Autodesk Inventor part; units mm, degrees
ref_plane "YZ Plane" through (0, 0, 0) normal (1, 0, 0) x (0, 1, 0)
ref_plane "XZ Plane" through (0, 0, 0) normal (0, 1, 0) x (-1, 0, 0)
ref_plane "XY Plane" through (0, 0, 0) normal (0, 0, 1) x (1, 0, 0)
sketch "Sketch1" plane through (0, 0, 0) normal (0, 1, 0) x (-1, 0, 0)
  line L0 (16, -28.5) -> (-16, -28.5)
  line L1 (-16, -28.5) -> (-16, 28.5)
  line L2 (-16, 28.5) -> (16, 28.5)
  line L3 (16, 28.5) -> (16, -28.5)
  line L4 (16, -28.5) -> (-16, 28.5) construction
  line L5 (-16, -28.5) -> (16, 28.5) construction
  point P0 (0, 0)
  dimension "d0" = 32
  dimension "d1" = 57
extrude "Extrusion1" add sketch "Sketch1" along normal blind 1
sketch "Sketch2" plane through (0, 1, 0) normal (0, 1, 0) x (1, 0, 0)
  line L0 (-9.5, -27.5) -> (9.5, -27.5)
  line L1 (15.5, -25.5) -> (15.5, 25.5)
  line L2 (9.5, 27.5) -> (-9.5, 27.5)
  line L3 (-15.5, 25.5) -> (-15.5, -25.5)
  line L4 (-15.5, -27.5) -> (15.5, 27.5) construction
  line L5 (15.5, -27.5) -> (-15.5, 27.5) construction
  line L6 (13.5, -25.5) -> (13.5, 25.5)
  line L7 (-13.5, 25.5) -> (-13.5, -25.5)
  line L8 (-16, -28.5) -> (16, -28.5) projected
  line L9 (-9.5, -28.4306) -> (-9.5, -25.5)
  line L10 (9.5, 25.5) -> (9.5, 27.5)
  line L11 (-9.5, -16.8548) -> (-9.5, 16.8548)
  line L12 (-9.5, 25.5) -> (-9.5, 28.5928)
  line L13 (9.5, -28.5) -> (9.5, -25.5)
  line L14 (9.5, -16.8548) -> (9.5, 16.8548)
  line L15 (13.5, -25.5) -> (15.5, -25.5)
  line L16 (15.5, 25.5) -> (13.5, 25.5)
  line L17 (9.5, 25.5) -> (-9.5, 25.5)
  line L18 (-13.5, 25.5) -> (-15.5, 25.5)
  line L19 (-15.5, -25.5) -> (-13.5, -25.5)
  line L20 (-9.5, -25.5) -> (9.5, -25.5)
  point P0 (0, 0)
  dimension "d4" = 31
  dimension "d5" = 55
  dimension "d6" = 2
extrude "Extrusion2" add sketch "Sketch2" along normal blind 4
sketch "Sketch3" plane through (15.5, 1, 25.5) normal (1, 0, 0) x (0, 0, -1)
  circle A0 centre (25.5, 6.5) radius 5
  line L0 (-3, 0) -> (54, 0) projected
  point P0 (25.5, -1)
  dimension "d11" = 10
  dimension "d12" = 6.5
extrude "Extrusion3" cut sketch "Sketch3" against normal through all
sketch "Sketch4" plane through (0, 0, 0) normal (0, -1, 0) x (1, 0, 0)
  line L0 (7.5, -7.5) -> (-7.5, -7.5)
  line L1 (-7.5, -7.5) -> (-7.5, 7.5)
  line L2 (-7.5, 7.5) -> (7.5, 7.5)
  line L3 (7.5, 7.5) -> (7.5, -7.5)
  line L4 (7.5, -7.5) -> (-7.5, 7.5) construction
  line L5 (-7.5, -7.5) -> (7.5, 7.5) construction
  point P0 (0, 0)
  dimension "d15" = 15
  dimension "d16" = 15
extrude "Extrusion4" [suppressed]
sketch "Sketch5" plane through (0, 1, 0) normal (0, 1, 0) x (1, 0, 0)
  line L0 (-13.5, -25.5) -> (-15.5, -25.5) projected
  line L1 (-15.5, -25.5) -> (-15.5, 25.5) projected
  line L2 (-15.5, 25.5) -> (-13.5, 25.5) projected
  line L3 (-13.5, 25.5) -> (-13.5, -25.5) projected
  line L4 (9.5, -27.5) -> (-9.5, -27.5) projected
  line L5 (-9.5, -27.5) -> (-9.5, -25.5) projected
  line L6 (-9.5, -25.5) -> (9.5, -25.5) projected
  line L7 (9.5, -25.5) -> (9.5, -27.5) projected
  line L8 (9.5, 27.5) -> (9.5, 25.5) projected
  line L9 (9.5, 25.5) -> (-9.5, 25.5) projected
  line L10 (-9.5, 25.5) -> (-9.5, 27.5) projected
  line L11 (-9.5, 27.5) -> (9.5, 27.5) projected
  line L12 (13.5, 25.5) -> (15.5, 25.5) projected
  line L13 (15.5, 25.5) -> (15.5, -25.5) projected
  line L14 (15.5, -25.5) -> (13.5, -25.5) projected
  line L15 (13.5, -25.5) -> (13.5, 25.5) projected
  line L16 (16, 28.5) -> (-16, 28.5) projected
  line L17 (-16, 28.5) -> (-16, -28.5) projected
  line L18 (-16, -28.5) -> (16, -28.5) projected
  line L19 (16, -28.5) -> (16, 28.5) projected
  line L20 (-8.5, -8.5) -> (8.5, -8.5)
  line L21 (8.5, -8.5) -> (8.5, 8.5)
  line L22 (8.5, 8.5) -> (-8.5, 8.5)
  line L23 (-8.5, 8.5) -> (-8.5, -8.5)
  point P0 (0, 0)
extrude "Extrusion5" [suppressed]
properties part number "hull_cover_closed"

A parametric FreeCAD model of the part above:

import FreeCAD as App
import Part
import Sketcher
Q = App.Units.Quantity

doc = App.newDocument("Part")
body = doc.addObject("PartDesign::Body", "Body")

# Sketch on XZ plane
sketch1 = doc.addObject("Sketcher::SketchObject", "Sketch")
body.addObject(sketch1)
sketch1.AttachmentSupport = (doc.XZ_Plane, [""])
sketch1.MapMode = "FlatFace"
sketch1.addGeometry(Part.LineSegment(App.Vector(16, -28, 0), App.Vector(-16, -28, 0)), False)
sketch1.addGeometry(Part.LineSegment(App.Vector(-16, -28, 0), App.Vector(-16, 28, 0)), False)
sketch1.addGeometry(Part.LineSegment(App.Vector(-16, 28, 0), App.Vector(16, 28, 0)), False)
sketch1.addGeometry(Part.LineSegment(App.Vector(16, 28, 0), App.Vector(16, -28, 0)), False)
sketch1.addConstraint(Sketcher.Constraint("Coincident", 0, 2, 1, 1))
sketch1.addConstraint(Sketcher.Constraint("Coincident", 1, 2, 2, 1))
sketch1.addConstraint(Sketcher.Constraint("Coincident", 2, 2, 3, 1))
sketch1.addConstraint(Sketcher.Constraint("Coincident", 3, 2, 0, 1))
sketch1.addConstraint(Sketcher.Constraint("Horizontal", 0))
sketch1.addConstraint(Sketcher.Constraint("Vertical", 1))
sketch1.addConstraint(Sketcher.Constraint("Horizontal", 2))
sketch1.addConstraint(Sketcher.Constraint("Vertical", 3))
sketch1.addConstraint(Sketcher.Constraint("Symmetric", 0, 2, 2, 2, -1, 1))
sketch1.addConstraint(Sketcher.Constraint("DistanceX", 0, 2, 0, 1, Q("32 mm")))
sketch1.addConstraint(Sketcher.Constraint("DistanceY", 1, 1, 1, 2, Q("57 mm")))
pad1 = doc.addObject("PartDesign::Pad", "Pad")
body.addObject(pad1)
pad1.Profile = sketch1
pad1.Length = 1
pad1.Reversed = True

# Sketch on XZ plane
sketch2 = doc.addObject("Sketcher::SketchObject", "Sketch001")
body.addObject(sketch2)
sketch2.AttachmentSupport = (doc.XZ_Plane, [""])
sketch2.MapMode = "FlatFace"
sketch2.AttachmentOffset = App.Placement(App.Vector(0, 0, -1), App.Rotation())
sketch2.addGeometry(Part.LineSegment(App.Vector(-9.5, 25.5, 0), App.Vector(-9.5, 27.5, 0)), False)
sketch2.addGeometry(Part.LineSegment(App.Vector(-9.5, 27.5, 0), App.Vector(9.5, 27.5, 0)), False)
sketch2.addGeometry(Part.LineSegment(App.Vector(9.5, 27.5, 0), App.Vector(9.5, 25.5, 0)), False)
sketch2.addGeometry(Part.LineSegment(App.Vector(9.5, 25.5, 0), App.Vector(-9.5, 25.5, 0)), False)
sketch2.addGeometry(Part.LineSegment(App.Vector(13.5, 25.5, 0), App.Vector(15.5, 25.5, 0)), False)
sketch2.addGeometry(Part.LineSegment(App.Vector(15.5, 25.5, 0), App.Vector(15.5, -25.5, 0)), False)
sketch2.addGeometry(Part.LineSegment(App.Vector(15.5, -25.5, 0), App.Vector(13.5, -25.5, 0)), False)
sketch2.addGeometry(Part.LineSegment(App.Vector(13.5, -25.5, 0), App.Vector(13.5, 25.5, 0)), False)
sketch2.addGeometry(Part.LineSegment(App.Vector(9.5, -25.5, 0), App.Vector(9.5, -27.5, 0)), False)
sketch2.addGeometry(Part.LineSegment(App.Vector(9.5, -27.5, 0), App.Vector(-9.5, -27.5, 0)), False)
sketch2.addGeometry(Part.LineSegment(App.Vector(-9.5, -27.5, 0), App.Vector(-9.5, -25.5, 0)), False)
sketch2.addGeometry(Part.LineSegment(App.Vector(-9.5, -25.5, 0), App.Vector(9.5, -25.5, 0)), False)
sketch2.addGeometry(Part.LineSegment(App.Vector(-13.5, -25.5, 0), App.Vector(-15.5, -25.5, 0)), False)
sketch2.addGeometry(Part.LineSegment(App.Vector(-15.5, -25.5, 0), App.Vector(-15.5, 25.5, 0)), False)
sketch2.addGeometry(Part.LineSegment(App.Vector(-15.5, 25.5, 0), App.Vector(-13.5, 25.5, 0)), False)
sketch2.addGeometry(Part.LineSegment(App.Vector(-13.5, 25.5, 0), App.Vector(-13.5, -25.5, 0)), False)
sketch2.addConstraint(Sketcher.Constraint("Coincident", 0, 2, 1, 1))
sketch2.addConstraint(Sketcher.Constraint("Coincident", 1, 2, 2, 1))
sketch2.addConstraint(Sketcher.Constraint("Coincident", 2, 2, 3, 1))
sketch2.addConstraint(Sketcher.Constraint("Coincident", 3, 2, 0, 1))
sketch2.addConstraint(Sketcher.Constraint("Coincident", 4, 2, 5, 1))
sketch2.addConstraint(Sketcher.Constraint("Coincident", 5, 2, 6, 1))
sketch2.addConstraint(Sketcher.Constraint("Coincident", 6, 2, 7, 1))
sketch2.addConstraint(Sketcher.Constraint("Coincident", 7, 2, 4, 1))
sketch2.addConstraint(Sketcher.Constraint("Coincident", 8, 2, 9, 1))
sketch2.addConstraint(Sketcher.Constraint("Coincident", 9, 2, 10, 1))
sketch2.addConstraint(Sketcher.Constraint("Coincident", 10, 2, 11, 1))
sketch2.addConstraint(Sketcher.Constraint("Coincident", 11, 2, 8, 1))
sketch2.addConstraint(Sketcher.Constraint("Coincident", 12, 2, 13, 1))
sketch2.addConstraint(Sketcher.Constraint("Coincident", 13, 2, 14, 1))
sketch2.addConstraint(Sketcher.Constraint("Coincident", 14, 2, 15, 1))
sketch2.addConstraint(Sketcher.Constraint("Coincident", 15, 2, 12, 1))
sketch2.addConstraint(Sketcher.Constraint("Vertical", 0))
sketch2.addConstraint(Sketcher.Constraint("Horizontal", 1))
sketch2.addConstraint(Sketcher.Constraint("Vertical", 2))
sketch2.addConstraint(Sketcher.Constraint("Horizontal", 3))
sketch2.addConstraint(Sketcher.Constraint("Horizontal", 4))
sketch2.addConstraint(Sketcher.Constraint("Vertical", 5))
sketch2.addConstraint(Sketcher.Constraint("Horizontal", 6))
sketch2.addConstraint(Sketcher.Constraint("Vertical", 7))
sketch2.addConstraint(Sketcher.Constraint("Vertical", 8))
sketch2.addConstraint(Sketcher.Constraint("Horizontal", 9))
sketch2.addConstraint(Sketcher.Constraint("Vertical", 10))
sketch2.addConstraint(Sketcher.Constraint("Horizontal", 11))
sketch2.addConstraint(Sketcher.Constraint("Horizontal", 12))
sketch2.addConstraint(Sketcher.Constraint("Vertical", 13))
sketch2.addConstraint(Sketcher.Constraint("Horizontal", 14))
sketch2.addConstraint(Sketcher.Constraint("Vertical", 15))
sketch2.addConstraint(Sketcher.Constraint("Symmetric", 0, 2, 8, 2, -1, 1))
sketch2.addConstraint(Sketcher.Constraint("Symmetric", 2, 2, 10, 2, -1, 1))
sketch2.addConstraint(Sketcher.Constraint("Symmetric", 4, 2, 12, 2, -1, 1))
sketch2.addConstraint(Sketcher.Constraint("Symmetric", 6, 2, 14, 2, -1, 1))
sketch2.addConstraint(Sketcher.Constraint("Horizontal", 3, 2, 4, 2))
sketch2.addConstraint(Sketcher.Constraint("Horizontal", 6, 2, 10, 2))
sketch2.addConstraint(Sketcher.Constraint("Vertical", 2, 2, 8, 2))
sketch2.addConstraint(Sketcher.Constraint("Equal", 14, 0))
sketch2.addConstraint(Sketcher.Constraint("DistanceX", 4, 1, 4, 2, Q("2 mm")))
sketch2.addConstraint(Sketcher.Constraint("DistanceY", 9, 2, 0, 2, Q("55 mm")))
sketch2.addConstraint(Sketcher.Constraint("DistanceX", 1, 1, 1, 2, Q("19 mm")))
sketch2.addConstraint(Sketcher.Constraint("DistanceX", 2, 2, 4, 2, Q("6 mm")))
pad2 = doc.addObject("PartDesign::Pad", "Pad001")
body.addObject(pad2)
pad2.Profile = sketch2
pad2.Length = 4
pad2.Reversed = True

# Sketch on YZ plane
sketch3 = doc.addObject("Sketcher::SketchObject", "Sketch002")
body.addObject(sketch3)
sketch3.AttachmentSupport = (doc.YZ_Plane, [""])
sketch3.MapMode = "FlatFace"
sketch3.AttachmentOffset = App.Placement(App.Vector(0, 0, 15.5), App.Rotation())
sketch3.addGeometry(Part.Circle(App.Vector(8, 0, 0), App.Vector(0, 0, 1), 5), False)
sketch3.addConstraint(Sketcher.Constraint("PointOnObject", 0, 3, -1))
sketch3.addConstraint(Sketcher.Constraint("Diameter", 0, Q("10 mm")))
sketch3.addConstraint(Sketcher.Constraint("DistanceX", -1, 1, 0, 3, Q("7.5 mm")))
pocket1 = doc.addObject("PartDesign::Pocket", "Pocket")
body.addObject(pocket1)
pocket1.Profile = sketch3
pocket1.Type = "ThroughAll"

doc.recompute()
